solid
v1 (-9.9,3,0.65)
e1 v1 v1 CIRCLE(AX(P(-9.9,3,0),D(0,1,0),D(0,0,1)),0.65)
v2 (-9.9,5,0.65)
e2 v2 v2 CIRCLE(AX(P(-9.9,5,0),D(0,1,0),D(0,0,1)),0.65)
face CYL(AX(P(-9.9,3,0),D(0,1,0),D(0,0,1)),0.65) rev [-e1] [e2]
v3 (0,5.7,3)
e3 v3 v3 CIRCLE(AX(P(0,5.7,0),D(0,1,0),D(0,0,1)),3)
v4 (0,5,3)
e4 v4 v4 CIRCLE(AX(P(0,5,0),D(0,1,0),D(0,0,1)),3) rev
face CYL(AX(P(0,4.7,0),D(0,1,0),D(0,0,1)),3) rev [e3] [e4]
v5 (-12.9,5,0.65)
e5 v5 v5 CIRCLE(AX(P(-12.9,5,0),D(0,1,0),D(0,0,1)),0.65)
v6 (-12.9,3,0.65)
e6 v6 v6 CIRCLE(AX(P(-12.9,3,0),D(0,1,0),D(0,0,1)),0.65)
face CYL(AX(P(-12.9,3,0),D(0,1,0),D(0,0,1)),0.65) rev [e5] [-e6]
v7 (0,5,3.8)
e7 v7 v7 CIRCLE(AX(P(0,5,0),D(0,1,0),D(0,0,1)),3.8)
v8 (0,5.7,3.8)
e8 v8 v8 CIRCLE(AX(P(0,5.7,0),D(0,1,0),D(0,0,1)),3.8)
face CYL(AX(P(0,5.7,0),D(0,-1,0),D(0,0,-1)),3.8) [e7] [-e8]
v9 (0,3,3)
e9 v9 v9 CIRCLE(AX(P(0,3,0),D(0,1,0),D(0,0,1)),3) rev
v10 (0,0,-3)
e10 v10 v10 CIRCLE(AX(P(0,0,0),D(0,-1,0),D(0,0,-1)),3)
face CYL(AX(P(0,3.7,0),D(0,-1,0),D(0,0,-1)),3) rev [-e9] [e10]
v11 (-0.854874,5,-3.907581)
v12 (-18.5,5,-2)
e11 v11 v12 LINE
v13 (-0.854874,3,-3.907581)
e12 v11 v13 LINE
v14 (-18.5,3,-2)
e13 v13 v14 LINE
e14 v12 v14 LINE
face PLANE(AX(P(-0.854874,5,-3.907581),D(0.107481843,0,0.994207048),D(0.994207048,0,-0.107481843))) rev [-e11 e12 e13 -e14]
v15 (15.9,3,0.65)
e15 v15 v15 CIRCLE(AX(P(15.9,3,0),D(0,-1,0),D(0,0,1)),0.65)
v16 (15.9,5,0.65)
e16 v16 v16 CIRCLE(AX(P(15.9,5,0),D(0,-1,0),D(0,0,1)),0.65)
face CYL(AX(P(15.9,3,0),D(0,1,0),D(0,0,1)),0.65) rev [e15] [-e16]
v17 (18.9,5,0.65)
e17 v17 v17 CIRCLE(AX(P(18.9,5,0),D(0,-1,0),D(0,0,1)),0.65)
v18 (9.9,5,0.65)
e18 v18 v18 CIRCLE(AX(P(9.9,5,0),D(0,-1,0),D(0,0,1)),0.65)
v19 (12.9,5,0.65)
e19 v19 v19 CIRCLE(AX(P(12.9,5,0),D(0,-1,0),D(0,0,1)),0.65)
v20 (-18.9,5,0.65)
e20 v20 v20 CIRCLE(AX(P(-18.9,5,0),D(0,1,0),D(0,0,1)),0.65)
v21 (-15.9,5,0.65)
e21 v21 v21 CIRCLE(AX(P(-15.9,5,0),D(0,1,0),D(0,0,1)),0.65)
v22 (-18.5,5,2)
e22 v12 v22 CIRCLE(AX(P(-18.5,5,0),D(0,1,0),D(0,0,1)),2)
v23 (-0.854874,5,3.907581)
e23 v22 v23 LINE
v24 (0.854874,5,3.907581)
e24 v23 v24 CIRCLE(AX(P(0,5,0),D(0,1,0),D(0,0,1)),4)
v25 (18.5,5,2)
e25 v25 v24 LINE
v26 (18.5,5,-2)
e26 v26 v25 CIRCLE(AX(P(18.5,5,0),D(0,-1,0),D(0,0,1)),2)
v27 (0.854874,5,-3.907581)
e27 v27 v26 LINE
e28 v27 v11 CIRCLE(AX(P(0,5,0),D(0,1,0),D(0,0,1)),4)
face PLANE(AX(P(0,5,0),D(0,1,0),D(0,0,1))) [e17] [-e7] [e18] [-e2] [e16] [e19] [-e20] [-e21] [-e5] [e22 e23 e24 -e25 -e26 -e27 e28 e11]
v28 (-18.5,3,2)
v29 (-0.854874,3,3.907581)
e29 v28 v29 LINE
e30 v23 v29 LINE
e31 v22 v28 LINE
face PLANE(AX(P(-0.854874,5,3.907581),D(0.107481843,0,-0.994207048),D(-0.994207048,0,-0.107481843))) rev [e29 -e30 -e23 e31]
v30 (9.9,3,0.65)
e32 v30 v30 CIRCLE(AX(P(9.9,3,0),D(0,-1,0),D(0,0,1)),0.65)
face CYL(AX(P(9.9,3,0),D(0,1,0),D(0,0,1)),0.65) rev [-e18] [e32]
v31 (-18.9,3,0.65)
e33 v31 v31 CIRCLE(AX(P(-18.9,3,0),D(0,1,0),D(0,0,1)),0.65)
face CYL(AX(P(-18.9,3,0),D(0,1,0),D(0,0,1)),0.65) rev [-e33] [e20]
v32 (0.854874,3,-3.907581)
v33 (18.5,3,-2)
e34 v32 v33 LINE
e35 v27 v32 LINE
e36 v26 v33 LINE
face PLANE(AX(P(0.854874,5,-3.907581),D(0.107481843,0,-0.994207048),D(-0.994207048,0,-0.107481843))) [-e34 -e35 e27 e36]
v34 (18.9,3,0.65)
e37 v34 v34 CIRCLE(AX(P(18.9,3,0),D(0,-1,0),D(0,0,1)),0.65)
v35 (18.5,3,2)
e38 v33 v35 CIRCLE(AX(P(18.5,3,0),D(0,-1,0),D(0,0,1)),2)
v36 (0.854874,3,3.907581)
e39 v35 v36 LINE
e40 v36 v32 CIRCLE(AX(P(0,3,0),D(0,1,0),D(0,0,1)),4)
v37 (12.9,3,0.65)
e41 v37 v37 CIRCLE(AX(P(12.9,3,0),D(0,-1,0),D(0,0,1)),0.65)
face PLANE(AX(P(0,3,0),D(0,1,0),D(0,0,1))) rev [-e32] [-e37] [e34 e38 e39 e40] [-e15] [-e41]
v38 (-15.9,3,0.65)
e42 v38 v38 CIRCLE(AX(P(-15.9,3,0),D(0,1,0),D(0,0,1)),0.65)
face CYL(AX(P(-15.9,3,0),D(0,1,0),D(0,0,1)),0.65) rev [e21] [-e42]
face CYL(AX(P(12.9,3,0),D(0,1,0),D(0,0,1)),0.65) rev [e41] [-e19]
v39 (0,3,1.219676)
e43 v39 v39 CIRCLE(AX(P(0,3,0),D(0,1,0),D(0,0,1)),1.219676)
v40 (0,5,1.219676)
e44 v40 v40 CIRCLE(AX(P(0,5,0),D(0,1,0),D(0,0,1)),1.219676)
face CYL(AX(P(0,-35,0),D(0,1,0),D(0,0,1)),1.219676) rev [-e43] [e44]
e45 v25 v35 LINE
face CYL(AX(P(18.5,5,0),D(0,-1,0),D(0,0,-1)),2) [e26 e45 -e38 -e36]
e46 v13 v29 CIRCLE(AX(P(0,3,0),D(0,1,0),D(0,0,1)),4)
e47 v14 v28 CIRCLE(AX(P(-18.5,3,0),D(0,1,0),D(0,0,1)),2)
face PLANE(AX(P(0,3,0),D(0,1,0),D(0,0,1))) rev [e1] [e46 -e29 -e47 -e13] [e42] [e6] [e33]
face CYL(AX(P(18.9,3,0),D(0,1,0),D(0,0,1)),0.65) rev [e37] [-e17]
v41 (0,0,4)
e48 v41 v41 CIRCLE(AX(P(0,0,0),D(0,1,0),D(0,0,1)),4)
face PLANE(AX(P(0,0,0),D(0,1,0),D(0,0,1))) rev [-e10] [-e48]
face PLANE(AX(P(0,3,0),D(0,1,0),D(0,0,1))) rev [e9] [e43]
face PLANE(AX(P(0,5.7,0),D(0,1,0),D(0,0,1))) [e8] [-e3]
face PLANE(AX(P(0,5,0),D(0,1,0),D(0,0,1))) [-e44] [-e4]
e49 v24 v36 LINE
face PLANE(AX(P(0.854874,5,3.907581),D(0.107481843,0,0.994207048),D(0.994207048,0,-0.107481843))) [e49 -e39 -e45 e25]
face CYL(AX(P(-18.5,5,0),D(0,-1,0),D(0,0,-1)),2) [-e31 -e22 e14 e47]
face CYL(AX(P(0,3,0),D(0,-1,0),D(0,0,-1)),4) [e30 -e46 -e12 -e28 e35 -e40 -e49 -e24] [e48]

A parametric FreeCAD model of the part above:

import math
import FreeCAD as App
import Part
import Sketcher
from FreeCAD import Vector

doc = App.newDocument("Part")
body = doc.addObject("PartDesign::Body", "Body")

sketch1 = doc.addObject("Sketcher::SketchObject", "Sketch")
body.addObject(sketch1)
sketch1.AttachmentSupport = (doc.XZ_Plane, [""])
sketch1.MapMode = "FlatFace"
sketch1.addGeometry(Part.Circle(Vector(0, 0, 0), Vector(0, 0, 1), 4), False)
sketch1.addConstraint(Sketcher.Constraint("Coincident", 0, 3, -1, 1))
sketch1.addConstraint(Sketcher.Constraint("Diameter", 0, 8.0))
pad1 = doc.addObject("PartDesign::Pad", "Pad")
body.addObject(pad1)
pad1.Profile = sketch1
pad1.Length = 3
pad1.Reversed = True

sketch2 = doc.addObject("Sketcher::SketchObject", "Sketch001")
body.addObject(sketch2)
sketch2.AttachmentSupport = (doc.XZ_Plane, [""])
sketch2.MapMode = "FlatFace"
sketch2.AttachmentOffset = App.Placement(Vector(0, 0, -3), App.Rotation())
sketch2.addGeometry(Part.LineSegment(Vector(-0.9, -3.9, 0), Vector(-18.5, -2, 0)), False)
sketch2.addGeometry(Part.ArcOfCircle(Part.Circle(Vector(-18.5, 0, 0), Vector(0, 0, 1), 2), math.radians(90), math.radians(270)), False)
sketch2.addGeometry(Part.LineSegment(Vector(-18.5, 2, 0), Vector(-0.9, 3.9, 0)), False)
sketch2.addGeometry(Part.ArcOfCircle(Part.Circle(Vector(0, 0, 0), Vector(0, 0, 1), 4), math.radians(-102), math.radians(102)), False)
sketch2.addConstraint(Sketcher.Constraint("Coincident", 0, 2, 1, 2))
sketch2.addConstraint(Sketcher.Constraint("Coincident", 1, 1, 2, 1))
sketch2.addConstraint(Sketcher.Constraint("Coincident", 2, 2, 3, 2))
sketch2.addConstraint(Sketcher.Constraint("Coincident", 3, 1, 0, 1))
sketch2.addConstraint(Sketcher.Constraint("Coincident", 3, 3, -1, 1))
sketch2.addConstraint(Sketcher.Constraint("Symmetric", 0, 2, 1, 1, -1))
sketch2.addConstraint(Sketcher.Constraint("Vertical", 1, 3, 0, 2))
sketch2.addConstraint(Sketcher.Constraint("Vertical", 2, 2, 3, 1))
sketch2.addConstraint(Sketcher.Constraint("Radius", 1, 2.0))
sketch2.addConstraint(Sketcher.Constraint("Radius", 3, 4.0))
sketch2.addConstraint(Sketcher.Constraint("DistanceX", 1, 3, -1, 1, 18.5))
sketch2.addConstraint(Sketcher.Constraint("Distance", 0, 17.747939))
pad2 = doc.addObject("PartDesign::Pad", "Pad001")
body.addObject(pad2)
pad2.Profile = sketch2
pad2.Length = 2
pad2.Reversed = True

sketch3 = doc.addObject("Sketcher::SketchObject", "Sketch002")
body.addObject(sketch3)
sketch3.AttachmentSupport = (doc.XZ_Plane, [""])
sketch3.MapMode = "FlatFace"
sketch3.AttachmentOffset = App.Placement(Vector(0, 0, -5), App.Rotation())
sketch3.addGeometry(Part.Circle(Vector(-9.9, 0, 0), Vector(0, 0, 1), 0.7), False)
sketch3.addGeometry(Part.Circle(Vector(-12.9, 0, 0), Vector(0, 0, 1), 0.7), False)
sketch3.addGeometry(Part.Circle(Vector(-15.9, 0, 0), Vector(0, 0, 1), 0.7), False)
sketch3.addGeometry(Part.Circle(Vector(-18.9, 0, 0), Vector(0, 0, 1), 0.7), False)
sketch3.addConstraint(Sketcher.Constraint("Equal", 0, 1))
sketch3.addConstraint(Sketcher.Constraint("Equal", 1, 2))
sketch3.addConstraint(Sketcher.Constraint("Equal", 2, 3))
sketch3.addConstraint(Sketcher.Constraint("PointOnObject", 0, 3, -1))
sketch3.addConstraint(Sketcher.Constraint("PointOnObject", 1, 3, -1))
sketch3.addConstraint(Sketcher.Constraint("PointOnObject", 2, 3, -1))
sketch3.addConstraint(Sketcher.Constraint("PointOnObject", 3, 3, -1))
sketch3.addConstraint(Sketcher.Constraint("Diameter", 0, 1.3))
sketch3.addConstraint(Sketcher.Constraint("DistanceX", 1, 3, 0, 3, 3.0))
sketch3.addConstraint(Sketcher.Constraint("DistanceX", 2, 3, 1, 3, 3.0))
sketch3.addConstraint(Sketcher.Constraint("DistanceX", 3, 3, 2, 3, 3.0))
sketch3.addConstraint(Sketcher.Constraint("DistanceX", 0, 3, -1, 1, 9.9))
pocket1 = doc.addObject("PartDesign::Pocket", "Pocket")
body.addObject(pocket1)
pocket1.Profile = sketch3
pocket1.Length = 2
pocket1.Reversed = True

sketch4 = doc.addObject("Sketcher::SketchObject", "Sketch003")
body.addObject(sketch4)
sketch4.AttachmentSupport = (doc.XZ_Plane, [""])
sketch4.MapMode = "FlatFace"
sketch4.AttachmentOffset = App.Placement(Vector(0, 0, -5), App.Rotation())
sketch4.addGeometry(Part.Circle(Vector(0, 0, 0), Vector(0, 0, 1), 3.8), False)
sketch4.addConstraint(Sketcher.Constraint("Coincident", 0, 3, -1, 1))
sketch4.addConstraint(Sketcher.Constraint("Diameter", 0, 7.6))
pad3 = doc.addObject("PartDesign::Pad", "Pad002")
body.addObject(pad3)
pad3.Profile = sketch4
pad3.Length = 0.7
pad3.Reversed = True

sketch5 = doc.addObject("Sketcher::SketchObject", "Sketch004")
body.addObject(sketch5)
sketch5.AttachmentSupport = (doc.XZ_Plane, [""])
sketch5.MapMode = "FlatFace"
sketch5.AttachmentOffset = App.Placement(Vector(0, 0, -5.7), App.Rotation())
sketch5.addGeometry(Part.Circle(Vector(0, 0, 0), Vector(0, 0, 1), 3), False)
sketch5.addConstraint(Sketcher.Constraint("Coincident", 0, 3, -1, 1))
sketch5.addConstraint(Sketcher.Constraint("Diameter", 0, 6.0))
pocket2 = doc.addObject("PartDesign::Pocket", "Pocket001")
body.addObject(pocket2)
pocket2.Profile = sketch5
pocket2.Length = 1
pocket2.Reversed = True

sketch6 = doc.addObject("Sketcher::SketchObject", "Sketch005")
body.addObject(sketch6)
sketch6.AttachmentSupport = (doc.XZ_Plane, [""])
sketch6.MapMode = "FlatFace"
sketch6.addGeometry(Part.Circle(Vector(0, 0, 0), Vector(0, 0, 1), 3), False)
sketch6.addConstraint(Sketcher.Constraint("Coincident", 0, 3, -1, 1))
sketch6.addConstraint(Sketcher.Constraint("Diameter", 0, 6.0))
pocket3 = doc.addObject("PartDesign::Pocket", "Pocket002")
body.addObject(pocket3)
pocket3.Profile = sketch6
pocket3.Length = 3.7
doc.recompute()

mirrored = doc.addObject("PartDesign::Mirrored", "Mirrored")
body.addObject(mirrored)
mirrored.Originals = [pad2, pocket1]
mirrored.MirrorPlane = (doc.YZ_Plane, [""])
body.Tip = mirrored

sketch7 = doc.addObject("Sketcher::SketchObject", "Sketch006")
body.addObject(sketch7)
sketch7.AttachmentSupport = (doc.XZ_Plane, [""])
sketch7.MapMode = "FlatFace"
sketch7.AttachmentOffset = App.Placement(Vector(0, 0, -5), App.Rotation())
sketch7.addGeometry(Part.Circle(Vector(0, 0, 0), Vector(0, 0, 1), 1.2), False)
sketch7.addConstraint(Sketcher.Constraint("Coincident", 0, 3, -1, 1))
sketch7.addConstraint(Sketcher.Constraint("Diameter", 0, 2.439351))
pocket4 = doc.addObject("PartDesign::Pocket", "Pocket003")
body.addObject(pocket4)
pocket4.Profile = sketch7
pocket4.Length = 40
pocket4.Reversed = True

doc.recompute()
